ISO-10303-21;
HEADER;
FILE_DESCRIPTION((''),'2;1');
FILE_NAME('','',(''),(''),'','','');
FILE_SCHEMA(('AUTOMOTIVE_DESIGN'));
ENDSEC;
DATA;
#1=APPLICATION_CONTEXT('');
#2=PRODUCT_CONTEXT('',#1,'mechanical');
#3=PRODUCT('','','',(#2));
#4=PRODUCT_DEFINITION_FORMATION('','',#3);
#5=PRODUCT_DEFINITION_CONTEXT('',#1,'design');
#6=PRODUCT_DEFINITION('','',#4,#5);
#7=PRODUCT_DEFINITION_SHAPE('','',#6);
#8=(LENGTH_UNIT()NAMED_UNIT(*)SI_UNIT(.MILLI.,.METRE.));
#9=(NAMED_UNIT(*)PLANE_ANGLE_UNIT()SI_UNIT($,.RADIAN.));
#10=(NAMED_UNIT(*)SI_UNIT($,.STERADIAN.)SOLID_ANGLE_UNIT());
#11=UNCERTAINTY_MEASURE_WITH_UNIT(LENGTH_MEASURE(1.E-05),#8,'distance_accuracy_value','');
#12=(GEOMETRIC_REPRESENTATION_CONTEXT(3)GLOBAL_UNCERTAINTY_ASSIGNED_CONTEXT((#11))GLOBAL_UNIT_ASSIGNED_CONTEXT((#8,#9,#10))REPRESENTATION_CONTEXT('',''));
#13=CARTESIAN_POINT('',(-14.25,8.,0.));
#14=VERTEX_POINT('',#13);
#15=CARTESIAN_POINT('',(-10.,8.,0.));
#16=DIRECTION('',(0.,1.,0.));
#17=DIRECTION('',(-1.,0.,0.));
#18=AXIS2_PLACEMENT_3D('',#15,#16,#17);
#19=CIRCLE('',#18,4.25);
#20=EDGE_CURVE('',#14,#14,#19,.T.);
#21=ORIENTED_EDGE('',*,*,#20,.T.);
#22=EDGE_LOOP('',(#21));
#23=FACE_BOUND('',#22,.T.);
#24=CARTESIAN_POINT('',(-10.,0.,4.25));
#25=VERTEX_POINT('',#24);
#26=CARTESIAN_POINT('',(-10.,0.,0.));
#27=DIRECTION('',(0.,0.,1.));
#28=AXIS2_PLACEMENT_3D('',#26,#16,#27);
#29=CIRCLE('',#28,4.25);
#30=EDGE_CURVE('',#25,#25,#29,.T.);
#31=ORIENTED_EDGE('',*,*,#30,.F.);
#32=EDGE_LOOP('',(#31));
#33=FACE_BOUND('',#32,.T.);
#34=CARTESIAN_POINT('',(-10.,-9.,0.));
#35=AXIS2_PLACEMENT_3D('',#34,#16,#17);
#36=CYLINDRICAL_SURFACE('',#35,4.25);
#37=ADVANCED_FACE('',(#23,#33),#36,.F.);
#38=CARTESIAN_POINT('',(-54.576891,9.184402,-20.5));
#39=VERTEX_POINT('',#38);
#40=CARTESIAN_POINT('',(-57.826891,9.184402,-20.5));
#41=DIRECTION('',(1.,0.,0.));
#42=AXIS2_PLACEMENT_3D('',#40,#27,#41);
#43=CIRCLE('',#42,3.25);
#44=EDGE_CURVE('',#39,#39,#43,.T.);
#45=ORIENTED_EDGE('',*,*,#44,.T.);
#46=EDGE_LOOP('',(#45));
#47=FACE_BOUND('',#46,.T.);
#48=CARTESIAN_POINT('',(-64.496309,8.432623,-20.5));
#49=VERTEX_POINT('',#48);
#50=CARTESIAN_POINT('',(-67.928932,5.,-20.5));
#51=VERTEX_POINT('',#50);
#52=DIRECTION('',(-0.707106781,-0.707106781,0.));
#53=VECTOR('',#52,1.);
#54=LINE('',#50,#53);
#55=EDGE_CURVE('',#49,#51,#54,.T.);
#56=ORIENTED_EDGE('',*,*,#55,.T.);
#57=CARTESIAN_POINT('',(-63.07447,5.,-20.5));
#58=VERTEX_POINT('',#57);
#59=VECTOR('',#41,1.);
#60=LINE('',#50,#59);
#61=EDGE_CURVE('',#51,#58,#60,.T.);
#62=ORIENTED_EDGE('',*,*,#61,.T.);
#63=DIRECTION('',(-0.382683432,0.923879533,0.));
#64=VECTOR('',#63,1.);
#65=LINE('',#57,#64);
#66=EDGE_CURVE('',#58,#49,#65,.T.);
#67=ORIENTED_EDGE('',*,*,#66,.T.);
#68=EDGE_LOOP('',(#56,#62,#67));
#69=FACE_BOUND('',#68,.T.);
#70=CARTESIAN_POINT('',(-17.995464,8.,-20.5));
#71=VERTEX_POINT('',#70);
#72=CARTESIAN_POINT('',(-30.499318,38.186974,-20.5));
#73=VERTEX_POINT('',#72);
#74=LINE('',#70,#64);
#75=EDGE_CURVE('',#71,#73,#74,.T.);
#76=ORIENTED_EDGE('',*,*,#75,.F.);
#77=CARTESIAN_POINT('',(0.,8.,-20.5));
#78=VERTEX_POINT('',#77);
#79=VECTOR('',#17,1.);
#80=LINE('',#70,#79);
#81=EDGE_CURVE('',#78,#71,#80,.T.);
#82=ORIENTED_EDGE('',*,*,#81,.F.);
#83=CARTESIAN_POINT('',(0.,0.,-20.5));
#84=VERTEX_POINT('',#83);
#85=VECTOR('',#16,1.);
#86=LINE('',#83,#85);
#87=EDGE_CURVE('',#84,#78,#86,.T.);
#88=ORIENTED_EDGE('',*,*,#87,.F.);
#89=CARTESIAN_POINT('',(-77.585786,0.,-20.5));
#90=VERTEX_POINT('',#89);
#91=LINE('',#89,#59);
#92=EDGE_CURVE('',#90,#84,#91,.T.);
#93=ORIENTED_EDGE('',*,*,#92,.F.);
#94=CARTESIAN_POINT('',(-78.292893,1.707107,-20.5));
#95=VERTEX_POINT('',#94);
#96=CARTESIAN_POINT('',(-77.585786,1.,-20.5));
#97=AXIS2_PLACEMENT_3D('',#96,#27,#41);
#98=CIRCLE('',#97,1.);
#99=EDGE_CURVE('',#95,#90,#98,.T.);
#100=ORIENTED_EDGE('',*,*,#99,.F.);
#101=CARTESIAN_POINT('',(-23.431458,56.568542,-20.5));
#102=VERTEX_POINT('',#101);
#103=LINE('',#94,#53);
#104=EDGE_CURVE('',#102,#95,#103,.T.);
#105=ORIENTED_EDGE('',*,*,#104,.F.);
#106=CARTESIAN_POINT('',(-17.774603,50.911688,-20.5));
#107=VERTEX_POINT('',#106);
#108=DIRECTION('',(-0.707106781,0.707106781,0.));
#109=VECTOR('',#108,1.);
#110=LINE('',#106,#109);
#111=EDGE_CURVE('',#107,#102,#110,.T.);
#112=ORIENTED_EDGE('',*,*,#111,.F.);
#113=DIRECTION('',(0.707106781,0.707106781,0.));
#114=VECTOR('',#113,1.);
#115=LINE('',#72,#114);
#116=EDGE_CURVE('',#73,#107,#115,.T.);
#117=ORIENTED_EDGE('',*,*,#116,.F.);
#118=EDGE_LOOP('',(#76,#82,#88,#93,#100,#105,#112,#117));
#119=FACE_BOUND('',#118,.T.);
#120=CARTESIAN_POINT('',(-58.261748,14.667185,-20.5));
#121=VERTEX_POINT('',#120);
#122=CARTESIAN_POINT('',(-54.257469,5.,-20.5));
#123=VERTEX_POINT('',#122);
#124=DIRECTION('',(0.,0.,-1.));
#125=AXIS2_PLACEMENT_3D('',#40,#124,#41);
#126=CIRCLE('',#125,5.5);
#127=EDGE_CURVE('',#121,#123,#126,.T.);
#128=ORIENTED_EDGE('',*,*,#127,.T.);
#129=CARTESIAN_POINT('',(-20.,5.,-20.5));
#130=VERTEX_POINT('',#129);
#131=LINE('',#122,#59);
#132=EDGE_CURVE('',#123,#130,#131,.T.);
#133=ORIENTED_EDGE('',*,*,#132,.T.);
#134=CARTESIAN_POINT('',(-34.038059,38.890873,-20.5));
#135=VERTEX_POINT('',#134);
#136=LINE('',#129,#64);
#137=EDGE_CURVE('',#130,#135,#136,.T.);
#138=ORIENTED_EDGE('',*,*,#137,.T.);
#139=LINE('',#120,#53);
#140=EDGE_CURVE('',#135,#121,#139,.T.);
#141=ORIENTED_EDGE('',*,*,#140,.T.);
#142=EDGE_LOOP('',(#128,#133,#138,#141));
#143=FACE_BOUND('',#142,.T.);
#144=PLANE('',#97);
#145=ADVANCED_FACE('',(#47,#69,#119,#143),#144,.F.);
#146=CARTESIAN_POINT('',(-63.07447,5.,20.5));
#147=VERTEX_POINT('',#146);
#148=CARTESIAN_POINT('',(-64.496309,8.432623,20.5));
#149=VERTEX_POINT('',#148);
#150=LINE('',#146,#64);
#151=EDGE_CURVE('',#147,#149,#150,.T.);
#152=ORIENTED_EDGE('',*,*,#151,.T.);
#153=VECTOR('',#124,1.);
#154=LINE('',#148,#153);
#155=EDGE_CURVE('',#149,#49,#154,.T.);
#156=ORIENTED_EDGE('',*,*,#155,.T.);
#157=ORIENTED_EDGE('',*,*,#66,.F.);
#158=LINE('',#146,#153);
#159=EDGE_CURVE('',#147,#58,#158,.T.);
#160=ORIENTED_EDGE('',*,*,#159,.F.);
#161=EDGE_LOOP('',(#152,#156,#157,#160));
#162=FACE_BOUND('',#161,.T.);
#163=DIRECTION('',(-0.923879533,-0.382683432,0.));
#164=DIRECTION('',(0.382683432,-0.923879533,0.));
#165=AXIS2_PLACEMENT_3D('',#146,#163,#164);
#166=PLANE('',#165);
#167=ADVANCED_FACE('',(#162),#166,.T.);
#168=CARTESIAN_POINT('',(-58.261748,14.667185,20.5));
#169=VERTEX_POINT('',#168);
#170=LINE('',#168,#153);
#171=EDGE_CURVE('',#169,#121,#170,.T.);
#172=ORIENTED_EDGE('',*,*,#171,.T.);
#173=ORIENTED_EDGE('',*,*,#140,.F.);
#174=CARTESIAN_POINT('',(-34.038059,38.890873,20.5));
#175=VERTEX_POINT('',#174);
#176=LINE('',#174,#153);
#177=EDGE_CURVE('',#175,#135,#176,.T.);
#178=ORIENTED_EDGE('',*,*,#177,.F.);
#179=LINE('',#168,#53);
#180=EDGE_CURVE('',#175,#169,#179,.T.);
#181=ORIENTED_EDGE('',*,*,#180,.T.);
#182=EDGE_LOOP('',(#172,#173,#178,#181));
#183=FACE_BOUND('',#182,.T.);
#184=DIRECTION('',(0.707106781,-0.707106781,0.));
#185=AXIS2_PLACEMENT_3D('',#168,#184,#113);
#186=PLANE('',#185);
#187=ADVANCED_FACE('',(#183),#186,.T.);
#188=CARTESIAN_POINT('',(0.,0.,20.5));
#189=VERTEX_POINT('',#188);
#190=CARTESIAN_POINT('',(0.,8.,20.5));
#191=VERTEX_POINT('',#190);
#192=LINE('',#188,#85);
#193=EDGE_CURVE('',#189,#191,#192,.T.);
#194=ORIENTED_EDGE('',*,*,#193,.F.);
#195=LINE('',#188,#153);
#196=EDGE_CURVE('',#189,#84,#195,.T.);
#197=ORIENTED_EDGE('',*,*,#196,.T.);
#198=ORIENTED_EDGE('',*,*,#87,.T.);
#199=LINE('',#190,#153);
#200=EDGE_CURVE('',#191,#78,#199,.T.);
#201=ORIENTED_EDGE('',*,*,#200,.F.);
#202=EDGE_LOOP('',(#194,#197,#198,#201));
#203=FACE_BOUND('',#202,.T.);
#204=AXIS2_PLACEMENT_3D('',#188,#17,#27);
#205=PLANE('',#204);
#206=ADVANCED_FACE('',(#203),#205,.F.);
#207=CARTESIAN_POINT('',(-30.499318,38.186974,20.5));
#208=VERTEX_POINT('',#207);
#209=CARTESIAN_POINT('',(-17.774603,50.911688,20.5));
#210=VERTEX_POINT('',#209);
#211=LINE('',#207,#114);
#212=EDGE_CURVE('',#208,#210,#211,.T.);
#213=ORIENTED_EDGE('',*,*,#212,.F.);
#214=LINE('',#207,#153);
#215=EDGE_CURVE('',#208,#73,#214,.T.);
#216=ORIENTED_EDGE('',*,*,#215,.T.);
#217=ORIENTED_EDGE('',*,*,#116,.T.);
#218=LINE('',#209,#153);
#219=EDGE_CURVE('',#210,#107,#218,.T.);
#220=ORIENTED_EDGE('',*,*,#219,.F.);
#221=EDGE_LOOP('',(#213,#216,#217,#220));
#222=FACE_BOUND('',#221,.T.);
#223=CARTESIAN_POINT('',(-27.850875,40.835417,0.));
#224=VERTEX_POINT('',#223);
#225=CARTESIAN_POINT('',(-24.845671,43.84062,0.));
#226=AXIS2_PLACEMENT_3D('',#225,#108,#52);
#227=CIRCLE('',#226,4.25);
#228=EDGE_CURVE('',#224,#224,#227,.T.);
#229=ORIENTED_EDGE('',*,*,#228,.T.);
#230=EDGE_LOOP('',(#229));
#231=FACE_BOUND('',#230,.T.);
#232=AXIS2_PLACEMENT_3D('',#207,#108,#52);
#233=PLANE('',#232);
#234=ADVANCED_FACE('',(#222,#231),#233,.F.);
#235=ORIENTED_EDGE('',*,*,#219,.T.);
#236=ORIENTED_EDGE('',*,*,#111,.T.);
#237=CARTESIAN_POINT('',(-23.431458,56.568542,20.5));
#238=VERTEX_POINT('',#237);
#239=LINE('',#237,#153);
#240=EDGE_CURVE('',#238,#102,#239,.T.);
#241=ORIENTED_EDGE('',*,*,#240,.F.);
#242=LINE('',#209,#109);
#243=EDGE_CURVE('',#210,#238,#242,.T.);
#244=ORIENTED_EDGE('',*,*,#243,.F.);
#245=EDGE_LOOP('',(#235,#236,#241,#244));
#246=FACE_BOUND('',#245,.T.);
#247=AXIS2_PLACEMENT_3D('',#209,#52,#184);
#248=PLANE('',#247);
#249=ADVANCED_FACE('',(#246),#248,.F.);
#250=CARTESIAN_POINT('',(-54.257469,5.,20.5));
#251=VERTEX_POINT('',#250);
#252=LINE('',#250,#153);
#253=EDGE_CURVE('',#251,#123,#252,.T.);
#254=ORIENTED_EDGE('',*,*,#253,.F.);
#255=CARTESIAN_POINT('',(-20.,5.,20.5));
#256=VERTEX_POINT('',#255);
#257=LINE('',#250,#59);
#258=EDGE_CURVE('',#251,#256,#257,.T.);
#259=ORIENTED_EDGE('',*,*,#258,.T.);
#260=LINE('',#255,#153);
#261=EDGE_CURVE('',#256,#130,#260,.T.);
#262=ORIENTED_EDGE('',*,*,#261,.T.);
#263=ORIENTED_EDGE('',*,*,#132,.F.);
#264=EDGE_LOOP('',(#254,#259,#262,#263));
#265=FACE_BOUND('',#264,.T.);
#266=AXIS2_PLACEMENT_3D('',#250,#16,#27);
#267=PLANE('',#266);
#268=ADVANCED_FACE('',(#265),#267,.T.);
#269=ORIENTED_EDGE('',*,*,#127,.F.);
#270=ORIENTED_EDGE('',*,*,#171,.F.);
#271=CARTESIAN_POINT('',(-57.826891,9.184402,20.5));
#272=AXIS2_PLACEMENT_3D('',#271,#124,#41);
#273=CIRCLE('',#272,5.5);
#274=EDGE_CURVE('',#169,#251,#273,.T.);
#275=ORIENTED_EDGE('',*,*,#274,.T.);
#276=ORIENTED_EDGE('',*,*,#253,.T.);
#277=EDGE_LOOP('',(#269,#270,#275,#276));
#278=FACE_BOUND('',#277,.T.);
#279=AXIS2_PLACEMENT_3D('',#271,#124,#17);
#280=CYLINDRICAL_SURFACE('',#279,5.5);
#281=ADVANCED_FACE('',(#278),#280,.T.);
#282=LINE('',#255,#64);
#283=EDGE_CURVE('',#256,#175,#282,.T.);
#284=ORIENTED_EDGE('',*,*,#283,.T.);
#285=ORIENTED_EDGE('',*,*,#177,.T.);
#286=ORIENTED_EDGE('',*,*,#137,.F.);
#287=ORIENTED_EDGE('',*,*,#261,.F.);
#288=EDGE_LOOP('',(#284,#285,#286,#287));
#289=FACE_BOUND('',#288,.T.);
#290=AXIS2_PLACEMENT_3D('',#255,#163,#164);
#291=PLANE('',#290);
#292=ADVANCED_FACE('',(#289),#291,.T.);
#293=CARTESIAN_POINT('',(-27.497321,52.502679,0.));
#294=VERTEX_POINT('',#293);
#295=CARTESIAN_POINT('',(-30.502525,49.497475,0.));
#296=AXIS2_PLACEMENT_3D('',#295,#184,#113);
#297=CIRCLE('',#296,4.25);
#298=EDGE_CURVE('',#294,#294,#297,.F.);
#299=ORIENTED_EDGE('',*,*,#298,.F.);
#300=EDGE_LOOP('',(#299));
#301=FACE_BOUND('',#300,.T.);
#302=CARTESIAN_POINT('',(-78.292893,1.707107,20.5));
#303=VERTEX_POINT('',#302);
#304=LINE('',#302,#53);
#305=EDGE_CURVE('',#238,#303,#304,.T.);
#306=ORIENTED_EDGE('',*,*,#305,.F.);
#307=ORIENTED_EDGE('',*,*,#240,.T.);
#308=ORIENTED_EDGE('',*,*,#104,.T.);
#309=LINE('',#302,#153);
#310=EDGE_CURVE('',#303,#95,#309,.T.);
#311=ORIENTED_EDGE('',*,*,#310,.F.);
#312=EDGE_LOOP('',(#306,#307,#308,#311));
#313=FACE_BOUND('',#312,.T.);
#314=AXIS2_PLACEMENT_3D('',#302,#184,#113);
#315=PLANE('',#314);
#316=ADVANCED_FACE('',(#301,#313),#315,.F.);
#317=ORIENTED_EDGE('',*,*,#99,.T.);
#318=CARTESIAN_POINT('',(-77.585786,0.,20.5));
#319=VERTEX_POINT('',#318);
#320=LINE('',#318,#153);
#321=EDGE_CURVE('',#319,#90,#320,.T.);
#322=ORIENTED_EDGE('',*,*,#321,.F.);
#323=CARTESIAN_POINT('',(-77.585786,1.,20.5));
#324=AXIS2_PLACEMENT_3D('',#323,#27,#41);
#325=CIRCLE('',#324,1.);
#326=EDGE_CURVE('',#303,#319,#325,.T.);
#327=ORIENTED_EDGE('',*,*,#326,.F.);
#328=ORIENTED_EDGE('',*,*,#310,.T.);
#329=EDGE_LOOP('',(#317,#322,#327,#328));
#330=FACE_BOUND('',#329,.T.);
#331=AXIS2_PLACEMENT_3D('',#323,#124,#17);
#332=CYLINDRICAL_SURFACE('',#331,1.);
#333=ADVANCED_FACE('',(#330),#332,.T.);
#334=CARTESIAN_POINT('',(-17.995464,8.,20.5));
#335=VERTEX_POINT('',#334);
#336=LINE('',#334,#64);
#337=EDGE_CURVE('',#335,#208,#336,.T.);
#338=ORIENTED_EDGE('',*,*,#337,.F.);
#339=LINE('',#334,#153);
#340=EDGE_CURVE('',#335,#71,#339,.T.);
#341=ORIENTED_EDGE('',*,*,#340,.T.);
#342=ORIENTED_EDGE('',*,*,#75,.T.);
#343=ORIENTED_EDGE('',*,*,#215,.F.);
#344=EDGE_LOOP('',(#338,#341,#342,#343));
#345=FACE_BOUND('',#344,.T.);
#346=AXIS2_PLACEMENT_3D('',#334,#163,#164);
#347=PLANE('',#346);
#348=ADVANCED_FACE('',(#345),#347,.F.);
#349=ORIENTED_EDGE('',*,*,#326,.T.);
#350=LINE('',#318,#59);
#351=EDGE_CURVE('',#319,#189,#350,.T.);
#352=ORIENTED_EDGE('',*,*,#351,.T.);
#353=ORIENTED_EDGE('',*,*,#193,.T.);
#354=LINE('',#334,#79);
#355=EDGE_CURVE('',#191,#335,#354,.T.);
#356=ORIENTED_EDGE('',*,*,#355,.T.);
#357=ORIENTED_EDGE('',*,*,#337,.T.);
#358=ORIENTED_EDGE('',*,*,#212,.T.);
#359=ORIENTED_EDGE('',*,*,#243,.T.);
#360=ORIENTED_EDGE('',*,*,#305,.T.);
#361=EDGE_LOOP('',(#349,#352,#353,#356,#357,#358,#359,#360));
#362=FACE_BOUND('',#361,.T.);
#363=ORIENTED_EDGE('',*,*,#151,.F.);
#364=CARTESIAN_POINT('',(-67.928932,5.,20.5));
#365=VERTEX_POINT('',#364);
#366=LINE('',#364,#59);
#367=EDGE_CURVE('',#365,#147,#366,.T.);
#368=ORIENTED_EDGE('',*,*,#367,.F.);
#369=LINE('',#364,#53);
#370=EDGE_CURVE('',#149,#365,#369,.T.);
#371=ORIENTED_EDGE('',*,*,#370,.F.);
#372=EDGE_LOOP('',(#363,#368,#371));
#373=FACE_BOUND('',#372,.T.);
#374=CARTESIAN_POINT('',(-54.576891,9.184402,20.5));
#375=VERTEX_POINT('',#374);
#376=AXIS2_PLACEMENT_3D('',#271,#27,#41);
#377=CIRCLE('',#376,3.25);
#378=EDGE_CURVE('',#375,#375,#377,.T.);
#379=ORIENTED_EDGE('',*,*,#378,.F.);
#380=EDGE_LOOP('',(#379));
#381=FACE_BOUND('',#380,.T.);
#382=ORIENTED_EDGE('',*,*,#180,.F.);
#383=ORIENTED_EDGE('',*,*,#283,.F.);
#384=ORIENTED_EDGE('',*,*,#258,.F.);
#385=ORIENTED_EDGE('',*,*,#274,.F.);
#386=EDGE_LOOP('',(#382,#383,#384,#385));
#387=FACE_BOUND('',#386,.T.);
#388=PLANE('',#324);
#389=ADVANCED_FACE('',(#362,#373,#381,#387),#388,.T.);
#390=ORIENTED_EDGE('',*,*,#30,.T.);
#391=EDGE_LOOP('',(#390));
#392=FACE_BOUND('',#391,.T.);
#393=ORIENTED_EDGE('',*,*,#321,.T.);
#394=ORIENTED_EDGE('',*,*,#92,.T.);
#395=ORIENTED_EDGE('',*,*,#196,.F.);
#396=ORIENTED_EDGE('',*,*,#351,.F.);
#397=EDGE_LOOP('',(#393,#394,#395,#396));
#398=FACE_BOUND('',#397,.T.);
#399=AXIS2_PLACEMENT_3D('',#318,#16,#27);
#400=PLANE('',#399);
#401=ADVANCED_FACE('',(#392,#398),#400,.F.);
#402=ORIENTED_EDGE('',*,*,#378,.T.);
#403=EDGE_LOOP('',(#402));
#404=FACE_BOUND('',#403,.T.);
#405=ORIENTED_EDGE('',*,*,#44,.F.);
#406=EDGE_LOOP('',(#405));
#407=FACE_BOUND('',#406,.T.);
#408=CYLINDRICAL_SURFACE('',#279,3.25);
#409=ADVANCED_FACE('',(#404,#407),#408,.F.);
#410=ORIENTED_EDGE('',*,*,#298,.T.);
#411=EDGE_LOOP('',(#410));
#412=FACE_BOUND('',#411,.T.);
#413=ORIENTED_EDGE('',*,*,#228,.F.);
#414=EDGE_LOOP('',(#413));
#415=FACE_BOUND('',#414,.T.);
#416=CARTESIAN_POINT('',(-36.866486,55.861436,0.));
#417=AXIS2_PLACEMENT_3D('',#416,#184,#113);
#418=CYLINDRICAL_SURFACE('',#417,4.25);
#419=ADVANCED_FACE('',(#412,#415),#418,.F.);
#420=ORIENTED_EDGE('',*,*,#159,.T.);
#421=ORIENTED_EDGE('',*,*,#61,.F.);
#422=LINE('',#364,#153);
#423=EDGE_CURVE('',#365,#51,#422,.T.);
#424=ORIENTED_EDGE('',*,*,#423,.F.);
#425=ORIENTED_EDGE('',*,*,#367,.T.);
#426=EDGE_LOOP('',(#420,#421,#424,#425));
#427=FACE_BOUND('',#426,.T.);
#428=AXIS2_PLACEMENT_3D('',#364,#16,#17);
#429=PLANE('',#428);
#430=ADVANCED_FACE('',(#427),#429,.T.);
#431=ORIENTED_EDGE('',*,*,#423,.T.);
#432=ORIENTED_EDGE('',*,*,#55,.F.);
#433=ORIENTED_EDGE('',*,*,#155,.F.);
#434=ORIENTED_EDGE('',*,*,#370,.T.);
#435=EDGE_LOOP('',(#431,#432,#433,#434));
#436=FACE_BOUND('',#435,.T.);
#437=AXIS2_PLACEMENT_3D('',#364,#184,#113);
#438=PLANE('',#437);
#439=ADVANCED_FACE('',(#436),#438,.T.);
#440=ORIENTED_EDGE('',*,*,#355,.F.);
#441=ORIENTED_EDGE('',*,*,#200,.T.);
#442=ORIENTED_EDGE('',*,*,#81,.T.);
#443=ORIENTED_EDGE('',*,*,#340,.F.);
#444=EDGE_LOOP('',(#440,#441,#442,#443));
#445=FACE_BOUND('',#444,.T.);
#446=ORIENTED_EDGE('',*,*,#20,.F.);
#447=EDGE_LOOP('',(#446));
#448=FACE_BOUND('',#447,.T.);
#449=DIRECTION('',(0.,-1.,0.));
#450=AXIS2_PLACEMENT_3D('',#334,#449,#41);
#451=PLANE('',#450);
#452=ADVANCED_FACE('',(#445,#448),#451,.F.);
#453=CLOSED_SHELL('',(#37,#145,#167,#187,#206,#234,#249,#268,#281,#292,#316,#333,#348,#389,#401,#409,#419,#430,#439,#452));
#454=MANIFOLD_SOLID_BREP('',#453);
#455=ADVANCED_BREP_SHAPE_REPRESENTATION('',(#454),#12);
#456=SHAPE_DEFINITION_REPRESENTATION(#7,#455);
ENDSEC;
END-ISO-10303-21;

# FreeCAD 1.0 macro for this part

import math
import FreeCAD as App
import Part
import Sketcher
from FreeCAD import Vector
Q = App.Units.Quantity

doc = App.newDocument("Part")
body = doc.addObject("PartDesign::Body", "Body")

sketch1 = body.newObject("Sketcher::SketchObject", "Sketch")
sketch1.AttachmentSupport = (doc.getObject("XY_Plane"), [""])
sketch1.MapMode = "FlatFace"
sketch1.addGeometry([
    Part.LineSegment(Vector(-77.585786, 0, 0), Vector(0, 0, 0)),
    Part.LineSegment(Vector(0, 0, 0), Vector(0, 8, 0)),
    Part.LineSegment(Vector(0, 8, 0), Vector(-17.995464, 8, 0)),
    Part.LineSegment(Vector(-17.995464, 8, 0), Vector(-30.499318, 38.186974, 0)),
    Part.LineSegment(Vector(-30.499318, 38.186974, 0), Vector(-17.774603, 50.911688, 0)),
    Part.LineSegment(Vector(-17.774603, 50.911688, 0), Vector(-23.431458, 56.568542, 0)),
    Part.LineSegment(Vector(-23.431458, 56.568542, 0), Vector(-78.292893, 1.707107, 0)),
    Part.ArcOfCircle(Part.Circle(Vector(-77.585786, 1, 0), Vector(0, 0, 1), 1), math.radians(135), math.radians(270)),
    Part.LineSegment(Vector(-63.07447, 5, 0), Vector(-67.928932, 5, 0)),
    Part.LineSegment(Vector(-67.928932, 5, 0), Vector(-64.496309, 8.432623, 0)),
    Part.LineSegment(Vector(-64.496309, 8.432623, 0), Vector(-63.07447, 5, 0)),
    Part.Circle(Vector(-57.826891, 9.184402, 0), Vector(0, 0, 1), 3.25),
    Part.LineSegment(Vector(-20, 5, 0), Vector(-54.257469, 5, 0)),
    Part.ArcOfCircle(Part.Circle(Vector(-57.826891, 9.184402, 0), Vector(0, 0, 1), 5.5), math.radians(-49.534813), math.radians(94.534813)),
    Part.LineSegment(Vector(-58.261748, 14.667185, 0), Vector(-34.038059, 38.890873, 0)),
    Part.LineSegment(Vector(-34.038059, 38.890873, 0), Vector(-20, 5, 0)),
], False)
sketch1.addConstraint([
    Sketcher.Constraint("Coincident", 0, 2, 1, 1),
    Sketcher.Constraint("Coincident", 1, 2, 2, 1),
    Sketcher.Constraint("Coincident", 2, 2, 3, 1),
    Sketcher.Constraint("Coincident", 3, 2, 4, 1),
    Sketcher.Constraint("Coincident", 4, 2, 5, 1),
    Sketcher.Constraint("Coincident", 5, 2, 6, 1),
    Sketcher.Constraint("Tangent", 6, 2, 7, 1),
    Sketcher.Constraint("Tangent", 7, 2, 0, 1),
    Sketcher.Constraint("Coincident", 8, 2, 9, 1),
    Sketcher.Constraint("Coincident", 9, 2, 10, 1),
    Sketcher.Constraint("Coincident", 10, 2, 8, 1),
    Sketcher.Constraint("Coincident", 12, 2, 13, 1),
    Sketcher.Constraint("Coincident", 13, 2, 14, 1),
    Sketcher.Constraint("Coincident", 14, 2, 15, 1),
    Sketcher.Constraint("Coincident", 15, 2, 12, 1),
    Sketcher.Constraint("Horizontal", 0),
    Sketcher.Constraint("Vertical", 1),
    Sketcher.Constraint("Horizontal", 2),
    Sketcher.Constraint("Horizontal", 8),
    Sketcher.Constraint("Horizontal", 12),
    Sketcher.Constraint("Coincident", 0, 2, -1, 1),
    Sketcher.Constraint("Coincident", 13, 3, 11, 3),
    Sketcher.Constraint("Perpendicular", 4, 5),
    Sketcher.Constraint("Perpendicular", 5, 6),
    Sketcher.Constraint("Parallel", 6, 9),
    Sketcher.Constraint("Parallel", 3, 10),
    Sketcher.Constraint("Parallel", 9, 14),
    Sketcher.Constraint("Parallel", 10, 15),
    Sketcher.Constraint("Horizontal", 10, 2, 12, 2),
    Sketcher.Constraint("Radius", 7, 1.0),
    Sketcher.Constraint("Diameter", 11, 6.5),
    Sketcher.Constraint("Radius", 13, 5.5),
    Sketcher.Constraint("DistanceY", 1, 1, 1, 2, 8.0),
    Sketcher.Constraint("Angle", 4, Q("45 deg")),
    Sketcher.Constraint("Distance", 5, 8.0),
    Sketcher.Constraint("DistanceY", -1, 1, 8, 2, 5.0),
    Sketcher.Constraint("DistanceX", 15, 2, -1, 1, 20.0),
    Sketcher.Constraint("Angle", 3, Q("112.5 deg")),
    Sketcher.Constraint("DistanceX", 6, 2, 11, 3, 20.466002),
    Sketcher.Constraint("DistanceX", 10, 2, 12, 2, 8.817002),
    Sketcher.Constraint("DistanceX", 8, 2, 8, 1, 4.854462),
    Sketcher.Constraint("DistanceX", 12, 2, 12, 1, 34.257469),
    Sketcher.Constraint("DistanceY", 3, 2, 14, 2, 0.703899),
    Sketcher.Constraint("DistanceX", 14, 2, 5, 2, 10.606602),
    Sketcher.Constraint("Distance", 14, 34.257469),
    Sketcher.Constraint("DistanceX", 0, 1, 0, 2, 77.585786),
])
pad1 = body.newObject("PartDesign::Pad", "Pad")
pad1.Profile = sketch1
pad1.Length = 41
pad1.Midplane = True

sketch2 = body.newObject("Sketcher::SketchObject", "Sketch001")
sketch2.AttachmentSupport = (doc.getObject("XZ_Plane"), [""])
sketch2.MapMode = "FlatFace"
sketch2.AttachmentOffset = App.Placement(Vector(0, 0, -8), App.Rotation())
sketch2.addGeometry(Part.Circle(Vector(-10, 0, 0), Vector(0, 0, 1), 4.25), False)
sketch2.addConstraint([
    Sketcher.Constraint("PointOnObject", 0, 3, -1),
    Sketcher.Constraint("Diameter", 0, 8.5),
    Sketcher.Constraint("DistanceX", 0, 3, -1, 1, 10.0),
])
pocket1 = body.newObject("PartDesign::Pocket", "Pocket")
pocket1.Profile = sketch2
pocket1.Length = 17
pocket1.Reversed = True
doc.recompute()

datumplane = body.newObject("PartDesign::Plane", "DatumPlane")
datumplane.Placement = App.Placement(Vector(-11.715729, 28.284271, 0), App.Rotation(Vector(0.923879533, 0.382683432, 0), Vector(0, 0, -1), Vector(-0.382683432, 0.923879533, 0), "ZXY"))
mirrored = body.newObject("PartDesign::Mirrored", "Mirrored")
mirrored.Originals = [pocket1]
mirrored.MirrorPlane = (datumplane, [""])
body.Tip = mirrored

doc.recompute()
